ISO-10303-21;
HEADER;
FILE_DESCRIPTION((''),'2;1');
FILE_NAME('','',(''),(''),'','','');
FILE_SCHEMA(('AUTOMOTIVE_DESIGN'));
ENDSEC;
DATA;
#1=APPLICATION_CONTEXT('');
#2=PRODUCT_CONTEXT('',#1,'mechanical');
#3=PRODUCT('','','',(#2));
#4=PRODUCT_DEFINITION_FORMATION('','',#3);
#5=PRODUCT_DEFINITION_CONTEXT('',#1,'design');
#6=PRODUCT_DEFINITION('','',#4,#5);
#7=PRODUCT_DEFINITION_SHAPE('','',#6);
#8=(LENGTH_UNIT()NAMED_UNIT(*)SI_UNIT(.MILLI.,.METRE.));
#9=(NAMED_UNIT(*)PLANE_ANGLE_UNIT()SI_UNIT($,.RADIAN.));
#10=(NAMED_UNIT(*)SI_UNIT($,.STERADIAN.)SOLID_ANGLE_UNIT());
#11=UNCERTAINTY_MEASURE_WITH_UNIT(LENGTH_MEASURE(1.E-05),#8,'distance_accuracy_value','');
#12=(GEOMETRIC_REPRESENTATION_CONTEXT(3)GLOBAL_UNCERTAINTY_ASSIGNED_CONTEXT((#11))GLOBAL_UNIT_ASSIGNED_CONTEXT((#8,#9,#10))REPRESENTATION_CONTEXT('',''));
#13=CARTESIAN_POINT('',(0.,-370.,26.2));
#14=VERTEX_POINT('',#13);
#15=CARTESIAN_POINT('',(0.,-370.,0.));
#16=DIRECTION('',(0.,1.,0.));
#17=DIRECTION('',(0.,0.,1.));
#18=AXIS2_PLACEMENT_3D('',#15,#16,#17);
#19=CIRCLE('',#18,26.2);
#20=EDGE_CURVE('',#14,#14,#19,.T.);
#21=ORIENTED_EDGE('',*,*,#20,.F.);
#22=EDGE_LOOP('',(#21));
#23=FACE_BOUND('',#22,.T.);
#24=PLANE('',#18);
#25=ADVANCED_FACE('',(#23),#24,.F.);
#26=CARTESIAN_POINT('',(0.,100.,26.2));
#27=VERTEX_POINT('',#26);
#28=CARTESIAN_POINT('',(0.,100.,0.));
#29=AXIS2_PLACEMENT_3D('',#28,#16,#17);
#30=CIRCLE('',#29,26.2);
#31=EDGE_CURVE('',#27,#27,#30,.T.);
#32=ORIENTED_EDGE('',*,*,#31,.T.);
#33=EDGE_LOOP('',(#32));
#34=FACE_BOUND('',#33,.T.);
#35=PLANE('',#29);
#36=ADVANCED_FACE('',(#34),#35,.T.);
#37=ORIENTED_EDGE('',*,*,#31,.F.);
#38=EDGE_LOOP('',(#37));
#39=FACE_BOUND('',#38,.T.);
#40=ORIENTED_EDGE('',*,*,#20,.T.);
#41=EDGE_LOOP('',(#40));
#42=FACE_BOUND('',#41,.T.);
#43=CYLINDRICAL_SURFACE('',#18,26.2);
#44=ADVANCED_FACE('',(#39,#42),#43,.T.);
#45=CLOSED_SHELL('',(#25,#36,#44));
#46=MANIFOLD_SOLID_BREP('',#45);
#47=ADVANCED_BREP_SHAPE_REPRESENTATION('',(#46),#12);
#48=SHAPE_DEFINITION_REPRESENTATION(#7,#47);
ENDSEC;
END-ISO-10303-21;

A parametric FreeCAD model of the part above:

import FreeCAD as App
import Part
import Sketcher

V = App.Vector
Q = App.Units.Quantity

doc = App.newDocument("Part")
body = doc.addObject("PartDesign::Body", "Body")

# Sketch on XZ plane
sketch1 = doc.addObject("Sketcher::SketchObject", "Sketch")
body.addObject(sketch1)
sketch1.AttachmentSupport = (doc.XZ_Plane, [""])
sketch1.MapMode = "FlatFace"
sketch1.addGeometry(Part.Circle(V(0, 0, 0), V(0, 0, 1), 26), False)
sketch1.addConstraint([
    Sketcher.Constraint("Coincident", 0, 3, -1, 1),
    Sketcher.Constraint("Diameter", 0, Q("52.4 mm")),
])
pad1 = doc.addObject("PartDesign::Pad", "Pad")
body.addObject(pad1)
pad1.Profile = sketch1
pad1.Type = "TwoLengths"
pad1.Length = 100
pad1.Length2 = 370
pad1.Reversed = True

doc.recompute()
